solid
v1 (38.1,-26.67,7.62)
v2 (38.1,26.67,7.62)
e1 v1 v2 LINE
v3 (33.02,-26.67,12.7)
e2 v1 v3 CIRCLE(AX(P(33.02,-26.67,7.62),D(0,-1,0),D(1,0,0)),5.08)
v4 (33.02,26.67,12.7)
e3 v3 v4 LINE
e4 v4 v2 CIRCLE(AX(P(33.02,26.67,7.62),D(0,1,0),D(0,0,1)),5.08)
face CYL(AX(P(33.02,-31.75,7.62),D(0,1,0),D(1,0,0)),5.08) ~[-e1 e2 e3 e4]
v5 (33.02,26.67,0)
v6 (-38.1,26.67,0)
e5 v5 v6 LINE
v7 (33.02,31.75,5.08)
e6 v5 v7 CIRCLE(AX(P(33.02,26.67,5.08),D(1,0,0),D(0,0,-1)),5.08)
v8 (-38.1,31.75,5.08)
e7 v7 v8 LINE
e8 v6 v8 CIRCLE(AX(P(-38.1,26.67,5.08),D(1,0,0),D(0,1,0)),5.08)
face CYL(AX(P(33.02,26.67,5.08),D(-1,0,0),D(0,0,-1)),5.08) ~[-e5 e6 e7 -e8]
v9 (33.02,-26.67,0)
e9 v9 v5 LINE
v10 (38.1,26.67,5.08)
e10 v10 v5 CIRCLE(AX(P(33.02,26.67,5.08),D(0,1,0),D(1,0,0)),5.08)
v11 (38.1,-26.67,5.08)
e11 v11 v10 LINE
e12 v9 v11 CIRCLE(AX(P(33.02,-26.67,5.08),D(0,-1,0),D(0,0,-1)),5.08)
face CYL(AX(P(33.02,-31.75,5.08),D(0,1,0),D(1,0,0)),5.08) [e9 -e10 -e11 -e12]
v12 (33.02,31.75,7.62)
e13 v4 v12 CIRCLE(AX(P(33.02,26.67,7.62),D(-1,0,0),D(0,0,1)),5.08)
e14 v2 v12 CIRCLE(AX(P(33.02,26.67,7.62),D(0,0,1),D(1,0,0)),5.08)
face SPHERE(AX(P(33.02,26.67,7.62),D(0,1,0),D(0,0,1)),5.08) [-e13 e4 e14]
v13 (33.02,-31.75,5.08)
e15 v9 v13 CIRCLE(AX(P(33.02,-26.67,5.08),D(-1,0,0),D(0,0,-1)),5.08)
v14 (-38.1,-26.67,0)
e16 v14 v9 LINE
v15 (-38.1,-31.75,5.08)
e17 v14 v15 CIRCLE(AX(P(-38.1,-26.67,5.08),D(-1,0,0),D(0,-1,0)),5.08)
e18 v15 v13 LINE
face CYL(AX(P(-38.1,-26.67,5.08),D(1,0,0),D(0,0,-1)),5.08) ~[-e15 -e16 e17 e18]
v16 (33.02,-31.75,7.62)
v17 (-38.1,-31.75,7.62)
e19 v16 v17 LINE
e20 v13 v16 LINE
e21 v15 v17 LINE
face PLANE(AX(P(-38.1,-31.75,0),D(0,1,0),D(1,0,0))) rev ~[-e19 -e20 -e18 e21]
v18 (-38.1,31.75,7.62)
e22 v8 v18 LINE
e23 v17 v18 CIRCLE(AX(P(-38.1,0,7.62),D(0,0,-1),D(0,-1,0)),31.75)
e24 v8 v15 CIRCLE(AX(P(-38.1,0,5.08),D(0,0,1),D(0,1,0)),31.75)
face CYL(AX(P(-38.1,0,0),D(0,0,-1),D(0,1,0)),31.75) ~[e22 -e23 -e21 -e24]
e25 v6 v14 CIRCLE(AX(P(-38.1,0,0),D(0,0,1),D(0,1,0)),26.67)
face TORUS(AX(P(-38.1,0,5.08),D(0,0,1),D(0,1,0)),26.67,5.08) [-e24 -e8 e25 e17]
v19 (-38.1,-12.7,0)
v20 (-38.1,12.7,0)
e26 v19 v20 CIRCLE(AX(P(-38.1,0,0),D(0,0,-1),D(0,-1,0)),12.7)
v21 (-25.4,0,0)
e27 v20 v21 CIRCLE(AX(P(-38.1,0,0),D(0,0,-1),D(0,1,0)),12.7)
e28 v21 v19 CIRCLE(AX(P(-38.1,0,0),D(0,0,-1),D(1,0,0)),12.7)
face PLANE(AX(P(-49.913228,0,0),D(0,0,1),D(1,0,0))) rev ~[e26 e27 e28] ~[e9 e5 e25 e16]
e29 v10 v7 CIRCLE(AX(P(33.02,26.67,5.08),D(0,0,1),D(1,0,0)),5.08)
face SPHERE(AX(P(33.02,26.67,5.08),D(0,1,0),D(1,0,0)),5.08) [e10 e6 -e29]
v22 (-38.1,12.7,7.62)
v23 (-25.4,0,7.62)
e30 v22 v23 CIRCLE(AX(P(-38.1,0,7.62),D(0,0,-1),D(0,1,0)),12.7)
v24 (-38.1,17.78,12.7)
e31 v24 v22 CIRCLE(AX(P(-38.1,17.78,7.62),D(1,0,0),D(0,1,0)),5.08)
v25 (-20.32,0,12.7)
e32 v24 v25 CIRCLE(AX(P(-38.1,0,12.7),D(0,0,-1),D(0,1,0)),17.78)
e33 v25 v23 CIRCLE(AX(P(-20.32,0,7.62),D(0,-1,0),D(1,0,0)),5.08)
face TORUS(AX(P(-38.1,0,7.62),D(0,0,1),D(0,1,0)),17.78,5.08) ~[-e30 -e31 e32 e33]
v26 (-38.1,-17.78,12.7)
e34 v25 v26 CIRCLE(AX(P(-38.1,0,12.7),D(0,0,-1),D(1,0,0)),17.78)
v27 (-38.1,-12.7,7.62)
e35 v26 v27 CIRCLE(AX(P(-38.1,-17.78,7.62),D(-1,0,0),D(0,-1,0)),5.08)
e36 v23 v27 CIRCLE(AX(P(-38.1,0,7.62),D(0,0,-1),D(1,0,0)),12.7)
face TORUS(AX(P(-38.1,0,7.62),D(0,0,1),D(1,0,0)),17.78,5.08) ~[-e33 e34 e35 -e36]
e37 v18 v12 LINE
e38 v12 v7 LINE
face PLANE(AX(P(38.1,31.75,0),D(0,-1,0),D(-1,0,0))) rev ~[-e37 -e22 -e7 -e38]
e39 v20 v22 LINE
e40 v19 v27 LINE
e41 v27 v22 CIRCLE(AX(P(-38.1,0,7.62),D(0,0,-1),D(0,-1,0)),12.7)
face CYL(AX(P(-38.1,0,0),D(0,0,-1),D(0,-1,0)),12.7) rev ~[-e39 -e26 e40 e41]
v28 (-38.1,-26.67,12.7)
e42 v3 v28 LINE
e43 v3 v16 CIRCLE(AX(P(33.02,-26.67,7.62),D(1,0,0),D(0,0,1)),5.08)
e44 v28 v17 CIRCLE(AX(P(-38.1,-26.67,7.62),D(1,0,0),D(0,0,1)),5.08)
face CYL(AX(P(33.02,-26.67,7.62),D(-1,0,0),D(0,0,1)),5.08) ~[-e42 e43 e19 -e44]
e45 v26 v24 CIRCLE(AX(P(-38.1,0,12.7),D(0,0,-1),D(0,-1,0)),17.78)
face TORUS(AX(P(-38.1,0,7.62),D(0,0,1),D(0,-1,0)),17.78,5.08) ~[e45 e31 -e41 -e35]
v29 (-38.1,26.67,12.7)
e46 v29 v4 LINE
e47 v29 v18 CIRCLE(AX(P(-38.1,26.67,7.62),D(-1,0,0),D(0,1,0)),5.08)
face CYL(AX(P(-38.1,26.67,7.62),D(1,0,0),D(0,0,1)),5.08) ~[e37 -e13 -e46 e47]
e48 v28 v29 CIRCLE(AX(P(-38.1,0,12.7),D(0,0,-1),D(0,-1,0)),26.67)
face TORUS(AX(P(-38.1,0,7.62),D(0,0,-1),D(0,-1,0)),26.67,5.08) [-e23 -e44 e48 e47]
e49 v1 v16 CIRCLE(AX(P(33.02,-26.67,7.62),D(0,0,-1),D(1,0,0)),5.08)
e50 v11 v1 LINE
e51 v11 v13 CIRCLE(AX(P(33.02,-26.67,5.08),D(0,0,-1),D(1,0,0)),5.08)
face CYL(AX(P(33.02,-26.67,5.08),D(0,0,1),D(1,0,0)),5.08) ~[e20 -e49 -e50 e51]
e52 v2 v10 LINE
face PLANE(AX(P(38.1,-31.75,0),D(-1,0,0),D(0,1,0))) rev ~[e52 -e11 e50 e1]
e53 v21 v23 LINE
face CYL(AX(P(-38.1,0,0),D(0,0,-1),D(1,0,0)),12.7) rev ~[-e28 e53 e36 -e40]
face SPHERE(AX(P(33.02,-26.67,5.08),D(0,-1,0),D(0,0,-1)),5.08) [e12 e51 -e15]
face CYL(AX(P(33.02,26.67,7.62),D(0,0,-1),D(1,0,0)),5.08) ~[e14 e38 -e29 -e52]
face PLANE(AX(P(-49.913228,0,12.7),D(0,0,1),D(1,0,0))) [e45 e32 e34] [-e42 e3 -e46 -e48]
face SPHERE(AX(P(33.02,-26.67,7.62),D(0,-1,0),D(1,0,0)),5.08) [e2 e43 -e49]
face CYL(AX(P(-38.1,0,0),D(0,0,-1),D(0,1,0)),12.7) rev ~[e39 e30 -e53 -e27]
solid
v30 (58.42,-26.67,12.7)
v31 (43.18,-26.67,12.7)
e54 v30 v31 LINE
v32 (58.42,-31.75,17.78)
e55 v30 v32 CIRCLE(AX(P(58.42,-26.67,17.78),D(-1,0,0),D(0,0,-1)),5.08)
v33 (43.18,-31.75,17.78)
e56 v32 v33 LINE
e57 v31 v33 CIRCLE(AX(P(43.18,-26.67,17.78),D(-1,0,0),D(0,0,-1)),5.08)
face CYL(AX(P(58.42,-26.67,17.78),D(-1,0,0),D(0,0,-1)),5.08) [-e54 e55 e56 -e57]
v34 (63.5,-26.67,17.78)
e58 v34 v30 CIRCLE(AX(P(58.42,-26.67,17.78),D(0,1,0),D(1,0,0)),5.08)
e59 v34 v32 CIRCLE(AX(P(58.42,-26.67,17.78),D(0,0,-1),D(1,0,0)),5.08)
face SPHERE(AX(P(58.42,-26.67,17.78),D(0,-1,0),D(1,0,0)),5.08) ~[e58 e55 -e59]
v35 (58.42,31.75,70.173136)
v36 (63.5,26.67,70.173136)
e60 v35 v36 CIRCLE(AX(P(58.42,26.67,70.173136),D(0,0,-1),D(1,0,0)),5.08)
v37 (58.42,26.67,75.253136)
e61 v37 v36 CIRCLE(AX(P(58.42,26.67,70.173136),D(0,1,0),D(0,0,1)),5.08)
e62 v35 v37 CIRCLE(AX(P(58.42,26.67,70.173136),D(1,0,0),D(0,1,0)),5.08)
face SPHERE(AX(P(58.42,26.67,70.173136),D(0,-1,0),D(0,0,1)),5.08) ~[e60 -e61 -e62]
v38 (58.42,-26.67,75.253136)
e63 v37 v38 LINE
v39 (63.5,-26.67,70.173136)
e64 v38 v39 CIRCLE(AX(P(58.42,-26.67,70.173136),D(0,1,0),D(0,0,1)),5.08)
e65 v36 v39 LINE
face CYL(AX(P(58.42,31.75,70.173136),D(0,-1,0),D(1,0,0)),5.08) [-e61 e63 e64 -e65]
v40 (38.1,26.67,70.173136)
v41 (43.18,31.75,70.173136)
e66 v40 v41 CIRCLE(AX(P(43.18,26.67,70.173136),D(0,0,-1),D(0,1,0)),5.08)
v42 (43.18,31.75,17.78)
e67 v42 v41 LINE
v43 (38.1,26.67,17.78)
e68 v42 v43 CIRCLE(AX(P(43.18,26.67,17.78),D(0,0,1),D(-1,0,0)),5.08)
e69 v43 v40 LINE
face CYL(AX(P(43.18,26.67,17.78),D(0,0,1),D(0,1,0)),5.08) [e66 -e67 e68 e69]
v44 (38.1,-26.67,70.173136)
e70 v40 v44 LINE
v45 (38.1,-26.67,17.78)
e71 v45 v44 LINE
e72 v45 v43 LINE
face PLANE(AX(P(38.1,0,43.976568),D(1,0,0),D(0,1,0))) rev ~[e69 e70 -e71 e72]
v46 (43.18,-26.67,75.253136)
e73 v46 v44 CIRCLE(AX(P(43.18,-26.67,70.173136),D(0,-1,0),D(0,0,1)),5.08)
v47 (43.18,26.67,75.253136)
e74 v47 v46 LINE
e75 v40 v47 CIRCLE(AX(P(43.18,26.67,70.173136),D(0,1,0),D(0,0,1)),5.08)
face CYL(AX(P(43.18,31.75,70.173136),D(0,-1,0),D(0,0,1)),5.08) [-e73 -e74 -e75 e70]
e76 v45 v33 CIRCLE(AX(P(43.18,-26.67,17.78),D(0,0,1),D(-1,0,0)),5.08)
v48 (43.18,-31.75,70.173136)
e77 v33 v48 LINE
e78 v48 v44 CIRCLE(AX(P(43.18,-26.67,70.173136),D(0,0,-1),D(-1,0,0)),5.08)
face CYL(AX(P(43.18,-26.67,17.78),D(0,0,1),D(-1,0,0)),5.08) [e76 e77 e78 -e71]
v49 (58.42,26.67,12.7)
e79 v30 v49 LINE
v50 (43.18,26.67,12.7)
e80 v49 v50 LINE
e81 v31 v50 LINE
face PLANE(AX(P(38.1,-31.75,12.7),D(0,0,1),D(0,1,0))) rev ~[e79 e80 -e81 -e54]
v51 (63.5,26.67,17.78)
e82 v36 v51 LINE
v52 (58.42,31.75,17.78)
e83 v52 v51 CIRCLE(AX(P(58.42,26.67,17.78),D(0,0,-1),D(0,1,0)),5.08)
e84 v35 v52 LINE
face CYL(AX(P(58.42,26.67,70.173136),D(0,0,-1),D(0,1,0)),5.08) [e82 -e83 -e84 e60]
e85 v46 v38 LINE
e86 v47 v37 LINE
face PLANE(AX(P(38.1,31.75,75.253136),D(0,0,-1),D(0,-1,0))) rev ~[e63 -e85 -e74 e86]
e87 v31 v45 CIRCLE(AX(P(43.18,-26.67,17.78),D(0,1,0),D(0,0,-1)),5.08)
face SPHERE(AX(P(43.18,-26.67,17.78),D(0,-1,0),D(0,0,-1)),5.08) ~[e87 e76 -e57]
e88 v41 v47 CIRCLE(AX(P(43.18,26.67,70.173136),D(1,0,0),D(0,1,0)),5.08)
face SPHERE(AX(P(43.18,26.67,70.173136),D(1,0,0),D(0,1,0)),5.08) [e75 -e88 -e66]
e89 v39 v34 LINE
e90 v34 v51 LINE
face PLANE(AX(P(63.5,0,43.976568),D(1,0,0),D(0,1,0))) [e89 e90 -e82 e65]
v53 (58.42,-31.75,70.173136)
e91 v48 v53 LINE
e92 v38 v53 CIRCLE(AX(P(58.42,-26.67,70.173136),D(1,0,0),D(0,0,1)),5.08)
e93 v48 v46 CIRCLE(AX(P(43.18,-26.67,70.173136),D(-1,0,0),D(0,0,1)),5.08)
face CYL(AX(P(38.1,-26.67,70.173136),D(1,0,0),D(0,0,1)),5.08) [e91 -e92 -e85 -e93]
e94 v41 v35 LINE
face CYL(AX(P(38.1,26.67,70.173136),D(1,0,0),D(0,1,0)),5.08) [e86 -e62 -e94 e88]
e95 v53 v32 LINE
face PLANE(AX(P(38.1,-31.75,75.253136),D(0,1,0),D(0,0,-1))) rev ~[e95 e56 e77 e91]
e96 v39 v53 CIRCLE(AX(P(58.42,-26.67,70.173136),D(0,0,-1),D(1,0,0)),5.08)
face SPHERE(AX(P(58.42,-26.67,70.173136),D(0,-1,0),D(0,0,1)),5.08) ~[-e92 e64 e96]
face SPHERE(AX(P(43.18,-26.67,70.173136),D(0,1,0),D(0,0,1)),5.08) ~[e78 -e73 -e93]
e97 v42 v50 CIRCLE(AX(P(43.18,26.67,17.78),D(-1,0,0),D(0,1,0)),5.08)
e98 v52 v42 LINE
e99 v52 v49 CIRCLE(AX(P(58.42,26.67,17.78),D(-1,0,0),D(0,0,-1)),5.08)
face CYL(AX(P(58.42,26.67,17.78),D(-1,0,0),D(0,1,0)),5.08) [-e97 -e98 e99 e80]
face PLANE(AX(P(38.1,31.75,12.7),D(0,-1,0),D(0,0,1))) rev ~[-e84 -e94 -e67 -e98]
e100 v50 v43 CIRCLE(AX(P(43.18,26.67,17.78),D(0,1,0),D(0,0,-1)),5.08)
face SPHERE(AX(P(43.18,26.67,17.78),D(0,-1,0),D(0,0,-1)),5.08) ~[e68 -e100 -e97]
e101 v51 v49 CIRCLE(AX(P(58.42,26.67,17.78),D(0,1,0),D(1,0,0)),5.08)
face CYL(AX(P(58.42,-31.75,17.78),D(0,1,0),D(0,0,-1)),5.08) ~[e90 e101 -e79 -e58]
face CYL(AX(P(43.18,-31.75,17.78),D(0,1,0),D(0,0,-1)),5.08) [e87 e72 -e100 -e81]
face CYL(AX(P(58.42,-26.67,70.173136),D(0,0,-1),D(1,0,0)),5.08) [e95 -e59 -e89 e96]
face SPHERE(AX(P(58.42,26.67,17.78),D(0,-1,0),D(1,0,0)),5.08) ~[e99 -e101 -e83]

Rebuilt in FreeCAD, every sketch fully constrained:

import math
import FreeCAD as App
import Part
import Sketcher

V = App.Vector
Q = App.Units.Quantity


def edges_at(feature, points):
    """Names of the edges that pass closest to the given points."""
    edges = feature.Shape.Edges
    near = lambda p: min(range(len(edges)), key=lambda i: edges[i].distToShape(Part.Vertex(*p))[0])
    return sorted({f"Edge{near(p) + 1}" for p in points})

doc = App.newDocument("Part")
params = doc.addObject("Spreadsheet::Sheet", "Params")
for row, (alias, value) in enumerate([
    ("sketch1_radius", "0.5 in"),
    ("sketch1_width", "3 in"),
    ("sketch1_radius2", "1.25 in"),
    ("pad1_length", "0.5 in"),
    ("fillet_radius", "0.2 in"),
    ("fillet2_radius", "0.2 in"),
    ("fillet3_radius", "0.2 in"),
    ("sketch2_width", "2.5 in"),
    ("pad2_length", "1 in"),
    ("fillet4_radius", "0.2 in"),
    ("fillet5_radius", "0.2 in"),
    ("fillet6_radius", "0.2 in"),
    ("fillet7_radius", "0.2 in"),
], start=1):
    params.set(f"A{row}", alias)
    params.set(f"B{row}", "=" + value)
    params.setAlias(f"B{row}", alias)

body = doc.addObject("PartDesign::Body", "Body")

# Sketch on XY plane
sketch1 = body.newObject("Sketcher::SketchObject", "Sketch")
sketch1.AttachmentSupport = (doc.getObject("XY_Plane"), [""])
sketch1.MapMode = "FlatFace"
sketch1.addGeometry([
    Part.ArcOfCircle(Part.Circle(V(-38, 0, 0), V(0, 0, 1), 32), math.radians(90), math.radians(270)),  # 0
    Part.LineSegment(V(-38, -32, 0), V(38, -32, 0)),  # 1
    Part.LineSegment(V(38, -32, 0), V(38, 32, 0)),  # 2
    Part.LineSegment(V(38, 32, 0), V(-38, 32, 0)),  # 3
    Part.ArcOfCircle(Part.Circle(V(-38, 0, 0), V(0, 0, 1), 13), math.radians(90), math.radians(270)),  # 4
    Part.ArcOfCircle(Part.Circle(V(-38, 0, 0), V(0, 0, 1), 13), math.radians(0), math.radians(90)),  # 5
    Part.ArcOfCircle(Part.Circle(V(-38, 0, 0), V(0, 0, 1), 13), math.radians(-90), math.radians(0)),  # 6
], False)
sketch1.addConstraint([
    Sketcher.Constraint("Tangent", 0, 2, 1, 1),
    Sketcher.Constraint("Coincident", 1, 2, 2, 1),
    Sketcher.Constraint("Coincident", 2, 2, 3, 1),
    Sketcher.Constraint("Tangent", 3, 2, 0, 1),
    Sketcher.Constraint("Tangent", 4, 1, 5, 2),
    Sketcher.Constraint("Tangent", 5, 1, 6, 2),
    Sketcher.Constraint("Tangent", 6, 1, 4, 2),
    Sketcher.Constraint("Horizontal", 1),
    Sketcher.Constraint("Vertical", 2),
    Sketcher.Constraint("Horizontal", 3),
    Sketcher.Constraint("Coincident", 4, 3, 0, 3),
    Sketcher.Constraint("Symmetric", 0, 2, 2, 2, -1, 1),
    Sketcher.Constraint("PointOnObject", 5, 1, -1),
    Sketcher.Constraint("Vertical", 3, 2, 4, 1),
    Sketcher.Constraint("Vertical", 4, 1, 6, 1),
    Sketcher.Constraint("Radius", 4, Q("0.5 in")),
    Sketcher.Constraint("DistanceX", 1, 1, 1, 2, Q("3 in")),
    Sketcher.Constraint("Radius", 0, Q("1.25 in")),
])
sketch1.setExpression("Constraints[15]", "Params.sketch1_radius")
sketch1.setExpression("Constraints[16]", "Params.sketch1_width")
sketch1.setExpression("Constraints[17]", "Params.sketch1_radius2")
pad1 = body.newObject("PartDesign::Pad", "Pad")
pad1.Profile = sketch1
pad1.setExpression("Length", "Params.pad1_length")
doc.recompute()

fillet = body.newObject("PartDesign::Fillet", "Fillet")
fillet.Base = (pad1, edges_at(pad1, [(38.1, 0, 0), (38.1, 0, 12.7)]))
fillet.setExpression("Radius", "Params.fillet_radius")
doc.recompute()

fillet2 = body.newObject("PartDesign::Fillet", "Fillet001")
fillet2.Base = (fillet, edges_at(fillet, [(-69.85, 0, 0)]))
fillet2.setExpression("Radius", "Params.fillet2_radius")
doc.recompute()

fillet3 = body.newObject("PartDesign::Fillet", "Fillet002")
fillet3.Base = (fillet2, edges_at(fillet2, [
    (-50.8, 0, 12.7),
    (-64.77, 0, 12.7),
    (-2.54, 26.67, 12.7),
    (-2.54, -26.67, 12.7),
    (-2.54, -31.75, 7.62),
    (-38.1, -30.262, 11.212),
    (-38.1, 30.262, 11.212),
]))
fillet3.setExpression("Radius", "Params.fillet3_radius")
body2 = doc.addObject("PartDesign::Body", "Body001")

# Sketch on YZ plane
sketch2 = body2.newObject("Sketcher::SketchObject", "Sketch001")
sketch2.AttachmentSupport = (doc.getObject("YZ_Plane001"), [""])
sketch2.MapMode = "FlatFace"
sketch2.AttachmentOffset = App.Placement(V(0, 0, 1.5 * 25.4), App.Rotation())
sketch2.addGeometry([
    Part.LineSegment(V(32, 13, 0), V(32, 75, 0)),
    Part.LineSegment(V(32, 75, 0), V(-32, 75, 0)),
    Part.LineSegment(V(-32, 75, 0), V(-32, 13, 0)),
    Part.LineSegment(V(-32, 13, 0), V(32, 13, 0)),
], False)
sketch2.addConstraint([
    Sketcher.Constraint("Coincident", 0, 2, 1, 1),
    Sketcher.Constraint("Coincident", 1, 2, 2, 1),
    Sketcher.Constraint("Coincident", 2, 2, 3, 1),
    Sketcher.Constraint("Coincident", 3, 2, 0, 1),
    Sketcher.Constraint("Vertical", 0),
    Sketcher.Constraint("Horizontal", 1),
    Sketcher.Constraint("Vertical", 2),
    Sketcher.Constraint("Horizontal", 3),
    Sketcher.Constraint("DistanceX", 1, 2, 1, 1, Q("2.5 in")),
    Sketcher.Constraint("DistanceY", -1, 1, 2, 2, Q("0.5 in")),
    Sketcher.Constraint("DistanceX", -1, 1, 0, 2, Q("1.25 in")),
    Sketcher.Constraint("DistanceY", 0, 1, 0, 2, 62.553136),
])
sketch2.setExpression("Constraints[8]", "Params.sketch2_width")
pad2 = body2.newObject("PartDesign::Pad", "Pad001")
pad2.Profile = sketch2
pad2.setExpression("Length", "Params.pad2_length")
doc.recompute()

fillet4 = body2.newObject("PartDesign::Fillet", "Fillet003")
fillet4.Base = (pad2, edges_at(pad2, [(63.5, 0, 12.7)]))
fillet4.setExpression("Radius", "Params.fillet4_radius")
doc.recompute()

fillet5 = body2.newObject("PartDesign::Fillet", "Fillet004")
fillet5.Base = (fillet4, edges_at(fillet4, [(38.1, 0, 12.7)]))
fillet5.setExpression("Radius", "Params.fillet5_radius")
doc.recompute()

fillet6 = body2.newObject("PartDesign::Fillet", "Fillet005")
fillet6.Base = (fillet5, edges_at(fillet5, [(63.5, 0, 75.253)]))
fillet6.setExpression("Radius", "Params.fillet6_radius")
doc.recompute()

fillet7 = body2.newObject("PartDesign::Fillet", "Fillet006")
fillet7.Base = (fillet6, edges_at(fillet6, [
    (48.26, 31.75, 75.253),
    (58.42, 0, 75.253),
    (38.1, 0, 75.253),
    (48.26, -31.75, 75.253),
]))
fillet7.setExpression("Radius", "Params.fillet7_radius")

doc.recompute()
